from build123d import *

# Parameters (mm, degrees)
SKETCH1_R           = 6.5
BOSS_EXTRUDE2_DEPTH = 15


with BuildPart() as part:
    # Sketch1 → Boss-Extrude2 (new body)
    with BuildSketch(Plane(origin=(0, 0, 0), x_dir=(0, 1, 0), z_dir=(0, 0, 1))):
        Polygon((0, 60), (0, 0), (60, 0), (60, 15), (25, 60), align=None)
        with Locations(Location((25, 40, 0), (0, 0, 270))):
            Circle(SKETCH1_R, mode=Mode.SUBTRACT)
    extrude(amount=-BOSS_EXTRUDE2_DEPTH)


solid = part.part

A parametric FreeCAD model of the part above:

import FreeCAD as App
import Part
import Sketcher
from FreeCAD import Vector


def add_polygon(sketch, points):
    """Adds a closed chain of lines whose ends are joined by coincident constraints."""
    first, n = sketch.GeometryCount, len(points)
    for a, b in zip(points, points[1:] + points[:1]):
        sketch.addGeometry(Part.LineSegment(App.Vector(*a, 0), App.Vector(*b, 0)), False)
    for i in range(n):
        sketch.addConstraint(Sketcher.Constraint("Coincident", first + i, 2, first + (i + 1) % n, 1))

doc = App.newDocument("Part")
body = doc.addObject("PartDesign::Body", "Body")

# Sketch on XY plane
sketch1 = body.newObject("Sketcher::SketchObject", "Sketch")
sketch1.AttachmentSupport = (doc.getObject("XY_Plane"), [""])
sketch1.MapMode = "FlatFace"
add_polygon(sketch1, [(-60, 0), (0, 0), (0, 60), (-15, 60), (-60, 25)])  # lines 0-4
sketch1.addGeometry(Part.Circle(Vector(-40, 25, 0), Vector(0, 0, 1), 6), False)  # 5
sketch1.addConstraint(Sketcher.Constraint("Horizontal", 0))
sketch1.addConstraint(Sketcher.Constraint("Vertical", 1))
sketch1.addConstraint(Sketcher.Constraint("Horizontal", 2))
sketch1.addConstraint(Sketcher.Constraint("Vertical", 4))
sketch1.addConstraint(Sketcher.Constraint("Coincident", 0, 2, -1, 1))
sketch1.addConstraint(Sketcher.Constraint("Horizontal", 5, 3, 3, 2))
sketch1.addConstraint(Sketcher.Constraint("Equal", 0, 1))
sketch1.addConstraint(Sketcher.Constraint("Diameter", 5, 13.0))
sketch1.addConstraint(Sketcher.Constraint("DistanceX", 0, 1, 0, 2, 60.0))
sketch1.addConstraint(Sketcher.Constraint("DistanceX", 2, 2, 2, 1, 15.0))
sketch1.addConstraint(Sketcher.Constraint("DistanceY", 4, 2, 4, 1, 25.0))
sketch1.addConstraint(Sketcher.Constraint("DistanceX", 5, 3, -1, 1, 40.0))
pad1 = body.newObject("PartDesign::Pad", "Pad")
pad1.Profile = sketch1
pad1.Length = 15
pad1.Reversed = True

doc.recompute()
